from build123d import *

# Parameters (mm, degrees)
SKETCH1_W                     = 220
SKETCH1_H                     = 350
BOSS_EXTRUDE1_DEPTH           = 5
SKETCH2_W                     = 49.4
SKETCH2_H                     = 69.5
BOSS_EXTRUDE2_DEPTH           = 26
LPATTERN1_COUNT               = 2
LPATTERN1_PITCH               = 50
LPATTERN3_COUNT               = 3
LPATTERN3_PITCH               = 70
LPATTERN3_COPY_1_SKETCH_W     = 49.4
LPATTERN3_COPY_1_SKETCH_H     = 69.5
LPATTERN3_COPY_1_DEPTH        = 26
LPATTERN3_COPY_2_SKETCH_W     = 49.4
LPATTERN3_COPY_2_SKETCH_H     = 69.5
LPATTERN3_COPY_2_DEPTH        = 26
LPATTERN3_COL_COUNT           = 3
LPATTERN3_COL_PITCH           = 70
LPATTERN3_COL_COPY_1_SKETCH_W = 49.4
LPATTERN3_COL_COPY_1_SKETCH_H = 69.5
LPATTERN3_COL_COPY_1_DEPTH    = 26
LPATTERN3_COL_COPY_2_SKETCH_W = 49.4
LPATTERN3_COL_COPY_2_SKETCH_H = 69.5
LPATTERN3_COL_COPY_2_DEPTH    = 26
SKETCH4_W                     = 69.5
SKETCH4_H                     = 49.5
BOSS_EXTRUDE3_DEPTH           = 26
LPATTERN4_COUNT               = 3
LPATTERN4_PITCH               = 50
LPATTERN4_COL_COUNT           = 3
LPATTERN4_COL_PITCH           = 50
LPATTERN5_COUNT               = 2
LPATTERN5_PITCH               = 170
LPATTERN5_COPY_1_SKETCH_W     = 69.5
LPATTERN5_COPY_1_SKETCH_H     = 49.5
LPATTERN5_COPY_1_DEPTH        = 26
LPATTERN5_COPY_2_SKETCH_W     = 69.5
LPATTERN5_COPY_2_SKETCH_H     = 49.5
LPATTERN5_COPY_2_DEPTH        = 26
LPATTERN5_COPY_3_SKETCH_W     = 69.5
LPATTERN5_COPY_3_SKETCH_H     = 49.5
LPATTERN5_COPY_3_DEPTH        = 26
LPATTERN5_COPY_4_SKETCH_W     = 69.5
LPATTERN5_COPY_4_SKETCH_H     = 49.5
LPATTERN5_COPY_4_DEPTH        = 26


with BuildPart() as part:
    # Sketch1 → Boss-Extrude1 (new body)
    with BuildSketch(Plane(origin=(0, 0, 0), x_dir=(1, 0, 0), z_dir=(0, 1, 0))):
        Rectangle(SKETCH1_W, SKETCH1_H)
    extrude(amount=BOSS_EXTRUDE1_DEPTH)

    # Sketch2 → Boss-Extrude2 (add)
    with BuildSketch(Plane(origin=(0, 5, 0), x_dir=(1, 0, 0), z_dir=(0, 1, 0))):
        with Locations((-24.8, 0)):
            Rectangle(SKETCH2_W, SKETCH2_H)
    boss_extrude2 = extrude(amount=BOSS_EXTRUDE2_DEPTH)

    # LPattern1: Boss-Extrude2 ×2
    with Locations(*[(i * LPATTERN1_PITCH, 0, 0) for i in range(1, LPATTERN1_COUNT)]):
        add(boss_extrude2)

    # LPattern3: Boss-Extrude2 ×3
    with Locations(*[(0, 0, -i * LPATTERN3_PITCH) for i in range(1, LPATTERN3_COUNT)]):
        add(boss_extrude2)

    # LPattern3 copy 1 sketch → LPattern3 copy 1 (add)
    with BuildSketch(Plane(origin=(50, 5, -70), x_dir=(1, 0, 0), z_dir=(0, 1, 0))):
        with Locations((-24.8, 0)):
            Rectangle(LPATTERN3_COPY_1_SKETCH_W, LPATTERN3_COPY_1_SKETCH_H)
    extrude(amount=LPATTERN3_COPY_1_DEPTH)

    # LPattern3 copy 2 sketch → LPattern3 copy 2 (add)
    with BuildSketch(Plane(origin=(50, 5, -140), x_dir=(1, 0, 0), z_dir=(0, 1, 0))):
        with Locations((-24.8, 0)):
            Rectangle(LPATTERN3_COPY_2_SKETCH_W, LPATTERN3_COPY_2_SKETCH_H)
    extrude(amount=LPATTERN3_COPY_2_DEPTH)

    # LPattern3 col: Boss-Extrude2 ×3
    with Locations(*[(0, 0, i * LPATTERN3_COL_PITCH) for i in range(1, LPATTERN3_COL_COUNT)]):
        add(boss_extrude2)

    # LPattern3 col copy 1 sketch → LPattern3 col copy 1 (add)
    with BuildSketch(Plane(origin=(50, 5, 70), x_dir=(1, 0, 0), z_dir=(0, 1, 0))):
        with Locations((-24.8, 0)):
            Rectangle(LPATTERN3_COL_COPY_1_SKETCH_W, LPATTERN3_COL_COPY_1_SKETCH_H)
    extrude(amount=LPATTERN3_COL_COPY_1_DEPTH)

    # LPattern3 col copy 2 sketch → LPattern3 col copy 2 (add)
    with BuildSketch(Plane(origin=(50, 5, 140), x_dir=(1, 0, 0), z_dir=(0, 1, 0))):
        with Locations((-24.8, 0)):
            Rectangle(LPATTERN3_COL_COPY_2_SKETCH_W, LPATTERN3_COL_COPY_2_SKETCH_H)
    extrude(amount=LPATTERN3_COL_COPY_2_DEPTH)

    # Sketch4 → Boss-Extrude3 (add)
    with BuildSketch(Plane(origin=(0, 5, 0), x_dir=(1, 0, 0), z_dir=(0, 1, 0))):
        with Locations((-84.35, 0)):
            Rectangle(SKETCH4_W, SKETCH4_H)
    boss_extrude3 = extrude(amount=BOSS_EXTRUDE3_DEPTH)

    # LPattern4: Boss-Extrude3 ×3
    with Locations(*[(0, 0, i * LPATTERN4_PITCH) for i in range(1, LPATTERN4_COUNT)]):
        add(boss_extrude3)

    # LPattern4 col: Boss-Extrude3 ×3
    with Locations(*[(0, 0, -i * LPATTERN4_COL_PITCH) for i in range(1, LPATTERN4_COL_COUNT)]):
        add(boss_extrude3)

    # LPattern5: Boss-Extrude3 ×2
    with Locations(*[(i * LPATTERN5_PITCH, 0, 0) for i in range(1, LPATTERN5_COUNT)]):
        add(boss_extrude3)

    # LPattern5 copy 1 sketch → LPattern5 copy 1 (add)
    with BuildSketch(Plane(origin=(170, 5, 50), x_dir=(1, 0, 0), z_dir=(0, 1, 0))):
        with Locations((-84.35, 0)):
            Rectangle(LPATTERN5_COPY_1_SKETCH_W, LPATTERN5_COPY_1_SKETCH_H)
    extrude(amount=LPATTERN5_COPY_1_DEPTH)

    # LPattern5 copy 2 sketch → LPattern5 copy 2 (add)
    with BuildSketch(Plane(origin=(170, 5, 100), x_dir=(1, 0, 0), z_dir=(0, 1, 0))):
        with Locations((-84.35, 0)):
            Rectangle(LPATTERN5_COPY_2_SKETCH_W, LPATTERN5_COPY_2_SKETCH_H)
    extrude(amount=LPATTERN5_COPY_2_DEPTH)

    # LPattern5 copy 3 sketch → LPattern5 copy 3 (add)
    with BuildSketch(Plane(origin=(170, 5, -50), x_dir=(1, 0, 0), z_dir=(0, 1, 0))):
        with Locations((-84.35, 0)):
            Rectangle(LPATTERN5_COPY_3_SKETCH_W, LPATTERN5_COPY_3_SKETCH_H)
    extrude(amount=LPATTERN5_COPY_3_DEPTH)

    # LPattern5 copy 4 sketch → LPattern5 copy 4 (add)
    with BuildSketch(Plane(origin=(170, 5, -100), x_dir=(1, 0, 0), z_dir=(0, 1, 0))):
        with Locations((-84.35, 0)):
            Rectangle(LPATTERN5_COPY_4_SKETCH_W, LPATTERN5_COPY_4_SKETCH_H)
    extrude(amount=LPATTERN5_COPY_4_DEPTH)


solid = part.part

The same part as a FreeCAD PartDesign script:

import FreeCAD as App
import Part
import Sketcher
from FreeCAD import Vector
Q = App.Units.Quantity

doc = App.newDocument("Part")
body = doc.addObject("PartDesign::Body", "Body")

# Sketch on XZ plane
sketch1 = doc.addObject("Sketcher::SketchObject", "Sketch")
body.addObject(sketch1)
sketch1.AttachmentSupport = (doc.XZ_Plane, [""])
sketch1.MapMode = "FlatFace"
sketch1.addGeometry([
    Part.LineSegment(Vector(-110, -175, 0), Vector(-110, 175, 0)),
    Part.LineSegment(Vector(-110, 175, 0), Vector(110, 175, 0)),
    Part.LineSegment(Vector(110, 175, 0), Vector(110, -175, 0)),
    Part.LineSegment(Vector(110, -175, 0), Vector(-110, -175, 0)),
], False)
sketch1.addConstraint([
    Sketcher.Constraint("Coincident", 0, 2, 1, 1),
    Sketcher.Constraint("Coincident", 1, 2, 2, 1),
    Sketcher.Constraint("Coincident", 2, 2, 3, 1),
    Sketcher.Constraint("Coincident", 3, 2, 0, 1),
    Sketcher.Constraint("Vertical", 0),
    Sketcher.Constraint("Horizontal", 1),
    Sketcher.Constraint("Vertical", 2),
    Sketcher.Constraint("Horizontal", 3),
    Sketcher.Constraint("Symmetric", 0, 2, 2, 2, -1, 1),
    Sketcher.Constraint("DistanceX", 1, 1, 1, 2, Q("220 mm")),
    Sketcher.Constraint("DistanceY", 0, 1, 0, 2, Q("350 mm")),
])
pad1 = doc.addObject("PartDesign::Pad", "Pad")
body.addObject(pad1)
pad1.Profile = sketch1
pad1.Length = 5
pad1.Reversed = True

# Sketch on XZ plane
sketch2 = doc.addObject("Sketcher::SketchObject", "Sketch001")
body.addObject(sketch2)
sketch2.AttachmentSupport = (doc.XZ_Plane, [""])
sketch2.MapMode = "FlatFace"
sketch2.AttachmentOffset = App.Placement(Vector(0, 0, -5), App.Rotation())
sketch2.addGeometry([
    Part.LineSegment(Vector(-50, -35, 0), Vector(-50, 35, 0)),
    Part.LineSegment(Vector(-50, 35, 0), Vector(0, 35, 0)),
    Part.LineSegment(Vector(0, 35, 0), Vector(0, -35, 0)),
    Part.LineSegment(Vector(0, -35, 0), Vector(-50, -35, 0)),
], False)
sketch2.addConstraint([
    Sketcher.Constraint("Coincident", 0, 2, 1, 1),
    Sketcher.Constraint("Coincident", 1, 2, 2, 1),
    Sketcher.Constraint("Coincident", 2, 2, 3, 1),
    Sketcher.Constraint("Coincident", 3, 2, 0, 1),
    Sketcher.Constraint("Vertical", 0),
    Sketcher.Constraint("Horizontal", 1),
    Sketcher.Constraint("Vertical", 2),
    Sketcher.Constraint("Horizontal", 3),
    Sketcher.Constraint("DistanceX", 1, 1, 1, 2, Q("49.4 mm")),
    Sketcher.Constraint("DistanceY", 0, 1, 0, 2, Q("69.5 mm")),
    Sketcher.Constraint("DistanceX", 0, 2, -1, 1, Q("49.5 mm")),
    Sketcher.Constraint("DistanceY", -1, 1, 0, 2, Q("34.75 mm")),
])
pad2 = doc.addObject("PartDesign::Pad", "Pad001")
body.addObject(pad2)
pad2.Profile = sketch2
pad2.Length = 26
pad2.Reversed = True
doc.recompute()

linearpattern = doc.addObject("PartDesign::LinearPattern", "LinearPattern")
body.addObject(linearpattern)
linearpattern.Originals = [pad2]
linearpattern.Direction = (doc.X_Axis, [""])
linearpattern.Mode = "offset"
linearpattern.Offset = 50
linearpattern.Occurrences = 2
body.Tip = linearpattern
doc.recompute()

linearpattern2 = doc.addObject("PartDesign::LinearPattern", "LinearPattern001")
body.addObject(linearpattern2)
linearpattern2.Originals = [pad2]
linearpattern2.Direction = (doc.Z_Axis, [""])
linearpattern2.Mode = "offset"
linearpattern2.Offset = 70
linearpattern2.Occurrences = 3
linearpattern2.Reversed = True
body.Tip = linearpattern2

# Sketch on XZ plane
sketch3 = doc.addObject("Sketcher::SketchObject", "Sketch002")
body.addObject(sketch3)
sketch3.AttachmentSupport = (doc.XZ_Plane, [""])
sketch3.MapMode = "FlatFace"
sketch3.AttachmentOffset = App.Placement(Vector(0, 0, -5), App.Rotation())
sketch3.addGeometry([
    Part.LineSegment(Vector(0, -105, 0), Vector(0, -35, 0)),
    Part.LineSegment(Vector(0, -35, 0), Vector(50, -35, 0)),
    Part.LineSegment(Vector(50, -35, 0), Vector(50, -105, 0)),
    Part.LineSegment(Vector(50, -105, 0), Vector(0, -105, 0)),
], False)
sketch3.addConstraint([
    Sketcher.Constraint("Coincident", 0, 2, 1, 1),
    Sketcher.Constraint("Coincident", 1, 2, 2, 1),
    Sketcher.Constraint("Coincident", 2, 2, 3, 1),
    Sketcher.Constraint("Coincident", 3, 2, 0, 1),
    Sketcher.Constraint("Vertical", 0),
    Sketcher.Constraint("Horizontal", 1),
    Sketcher.Constraint("Vertical", 2),
    Sketcher.Constraint("Horizontal", 3),
    Sketcher.Constraint("DistanceX", 1, 1, 1, 2, Q("49.4 mm")),
    Sketcher.Constraint("DistanceY", 0, 1, 0, 2, Q("69.5 mm")),
    Sketcher.Constraint("DistanceX", -1, 1, 0, 2, Q("0.5 mm")),
    Sketcher.Constraint("DistanceY", 0, 2, -1, 1, Q("35.25 mm")),
])
pad3 = doc.addObject("PartDesign::Pad", "Pad002")
body.addObject(pad3)
pad3.Profile = sketch3
pad3.Length = 26
pad3.Reversed = True

# Sketch on XZ plane
sketch4 = doc.addObject("Sketcher::SketchObject", "Sketch003")
body.addObject(sketch4)
sketch4.AttachmentSupport = (doc.XZ_Plane, [""])
sketch4.MapMode = "FlatFace"
sketch4.AttachmentOffset = App.Placement(Vector(0, 0, -5), App.Rotation())
sketch4.addGeometry([
    Part.LineSegment(Vector(0, -175, 0), Vector(0, -105, 0)),
    Part.LineSegment(Vector(0, -105, 0), Vector(50, -105, 0)),
    Part.LineSegment(Vector(50, -105, 0), Vector(50, -175, 0)),
    Part.LineSegment(Vector(50, -175, 0), Vector(0, -175, 0)),
], False)
sketch4.addConstraint([
    Sketcher.Constraint("Coincident", 0, 2, 1, 1),
    Sketcher.Constraint("Coincident", 1, 2, 2, 1),
    Sketcher.Constraint("Coincident", 2, 2, 3, 1),
    Sketcher.Constraint("Coincident", 3, 2, 0, 1),
    Sketcher.Constraint("Vertical", 0),
    Sketcher.Constraint("Horizontal", 1),
    Sketcher.Constraint("Vertical", 2),
    Sketcher.Constraint("Horizontal", 3),
    Sketcher.Constraint("DistanceX", 1, 1, 1, 2, Q("49.4 mm")),
    Sketcher.Constraint("DistanceY", 0, 1, 0, 2, Q("69.5 mm")),
    Sketcher.Constraint("DistanceX", -1, 1, 0, 2, Q("0.5 mm")),
    Sketcher.Constraint("DistanceY", 0, 2, -1, 1, Q("105.25 mm")),
])
pad4 = doc.addObject("PartDesign::Pad", "Pad003")
body.addObject(pad4)
pad4.Profile = sketch4
pad4.Length = 26
pad4.Reversed = True
doc.recompute()

linearpattern3 = doc.addObject("PartDesign::LinearPattern", "LinearPattern002")
body.addObject(linearpattern3)
linearpattern3.Originals = [pad2]
linearpattern3.Direction = (doc.Z_Axis, [""])
linearpattern3.Mode = "offset"
linearpattern3.Offset = 70
linearpattern3.Occurrences = 3
body.Tip = linearpattern3

# Sketch on XZ plane
sketch5 = doc.addObject("Sketcher::SketchObject", "Sketch004")
body.addObject(sketch5)
sketch5.AttachmentSupport = (doc.XZ_Plane, [""])
sketch5.MapMode = "FlatFace"
sketch5.AttachmentOffset = App.Placement(Vector(0, 0, -5), App.Rotation())
sketch5.addGeometry([
    Part.LineSegment(Vector(0, 35, 0), Vector(0, 105, 0)),
    Part.LineSegment(Vector(0, 105, 0), Vector(50, 105, 0)),
    Part.LineSegment(Vector(50, 105, 0), Vector(50, 35, 0)),
    Part.LineSegment(Vector(50, 35, 0), Vector(0, 35, 0)),
], False)
sketch5.addConstraint([
    Sketcher.Constraint("Coincident", 0, 2, 1, 1),
    Sketcher.Constraint("Coincident", 1, 2, 2, 1),
    Sketcher.Constraint("Coincident", 2, 2, 3, 1),
    Sketcher.Constraint("Coincident", 3, 2, 0, 1),
    Sketcher.Constraint("Vertical", 0),
    Sketcher.Constraint("Horizontal", 1),
    Sketcher.Constraint("Vertical", 2),
    Sketcher.Constraint("Horizontal", 3),
    Sketcher.Constraint("DistanceX", 1, 1, 1, 2, Q("49.4 mm")),
    Sketcher.Constraint("DistanceY", 0, 1, 0, 2, Q("69.5 mm")),
    Sketcher.Constraint("DistanceX", -1, 1, 0, 2, Q("0.5 mm")),
    Sketcher.Constraint("DistanceY", -1, 1, 0, 2, Q("104.75 mm")),
])
pad5 = doc.addObject("PartDesign::Pad", "Pad004")
body.addObject(pad5)
pad5.Profile = sketch5
pad5.Length = 26
pad5.Reversed = True

# Sketch on XZ plane
sketch6 = doc.addObject("Sketcher::SketchObject", "Sketch005")
body.addObject(sketch6)
sketch6.AttachmentSupport = (doc.XZ_Plane, [""])
sketch6.MapMode = "FlatFace"
sketch6.AttachmentOffset = App.Placement(Vector(0, 0, -5), App.Rotation())
sketch6.addGeometry([
    Part.LineSegment(Vector(0, 105, 0), Vector(0, 175, 0)),
    Part.LineSegment(Vector(0, 175, 0), Vector(50, 175, 0)),
    Part.LineSegment(Vector(50, 175, 0), Vector(50, 105, 0)),
    Part.LineSegment(Vector(50, 105, 0), Vector(0, 105, 0)),
], False)
sketch6.addConstraint([
    Sketcher.Constraint("Coincident", 0, 2, 1, 1),
    Sketcher.Constraint("Coincident", 1, 2, 2, 1),
    Sketcher.Constraint("Coincident", 2, 2, 3, 1),
    Sketcher.Constraint("Coincident", 3, 2, 0, 1),
    Sketcher.Constraint("Vertical", 0),
    Sketcher.Constraint("Horizontal", 1),
    Sketcher.Constraint("Vertical", 2),
    Sketcher.Constraint("Horizontal", 3),
    Sketcher.Constraint("DistanceX", 1, 1, 1, 2, Q("49.4 mm")),
    Sketcher.Constraint("DistanceY", 0, 1, 0, 2, Q("69.5 mm")),
    Sketcher.Constraint("DistanceX", -1, 1, 0, 2, Q("0.5 mm")),
    Sketcher.Constraint("DistanceY", -1, 1, 0, 2, Q("174.75 mm")),
])
pad6 = doc.addObject("PartDesign::Pad", "Pad005")
body.addObject(pad6)
pad6.Profile = sketch6
pad6.Length = 26
pad6.Reversed = True

# Sketch on XZ plane
sketch7 = doc.addObject("Sketcher::SketchObject", "Sketch006")
body.addObject(sketch7)
sketch7.AttachmentSupport = (doc.XZ_Plane, [""])
sketch7.MapMode = "FlatFace"
sketch7.AttachmentOffset = App.Placement(Vector(0, 0, -5), App.Rotation())
sketch7.addGeometry([
    Part.LineSegment(Vector(-119, -25, 0), Vector(-119, 25, 0)),
    Part.LineSegment(Vector(-119, 25, 0), Vector(-50, 25, 0)),
    Part.LineSegment(Vector(-50, 25, 0), Vector(-50, -25, 0)),
    Part.LineSegment(Vector(-50, -25, 0), Vector(-119, -25, 0)),
], False)
sketch7.addConstraint([
    Sketcher.Constraint("Coincident", 0, 2, 1, 1),
    Sketcher.Constraint("Coincident", 1, 2, 2, 1),
    Sketcher.Constraint("Coincident", 2, 2, 3, 1),
    Sketcher.Constraint("Coincident", 3, 2, 0, 1),
    Sketcher.Constraint("Vertical", 0),
    Sketcher.Constraint("Horizontal", 1),
    Sketcher.Constraint("Vertical", 2),
    Sketcher.Constraint("Horizontal", 3),
    Sketcher.Constraint("DistanceX", 1, 1, 1, 2, Q("69.5 mm")),
    Sketcher.Constraint("DistanceY", 0, 1, 0, 2, Q("49.5 mm")),
    Sketcher.Constraint("DistanceX", 0, 2, -1, 1, Q("119.1 mm")),
    Sketcher.Constraint("DistanceY", -1, 1, 0, 2, Q("24.75 mm")),
])
pad7 = doc.addObject("PartDesign::Pad", "Pad006")
body.addObject(pad7)
pad7.Profile = sketch7
pad7.Length = 26
pad7.Reversed = True
doc.recompute()

linearpattern4 = doc.addObject("PartDesign::LinearPattern", "LinearPattern003")
body.addObject(linearpattern4)
linearpattern4.Originals = [pad7]
linearpattern4.Direction = (doc.Z_Axis, [""])
linearpattern4.Mode = "offset"
linearpattern4.Offset = 50
linearpattern4.Occurrences = 3
body.Tip = linearpattern4
doc.recompute()

linearpattern5 = doc.addObject("PartDesign::LinearPattern", "LinearPattern004")
body.addObject(linearpattern5)
linearpattern5.Originals = [pad7]
linearpattern5.Direction = (doc.Z_Axis, [""])
linearpattern5.Mode = "offset"
linearpattern5.Offset = 50
linearpattern5.Occurrences = 3
linearpattern5.Reversed = True
body.Tip = linearpattern5
doc.recompute()

linearpattern6 = doc.addObject("PartDesign::LinearPattern", "LinearPattern005")
body.addObject(linearpattern6)
linearpattern6.Originals = [pad7]
linearpattern6.Direction = (doc.X_Axis, [""])
linearpattern6.Mode = "offset"
linearpattern6.Offset = 170
linearpattern6.Occurrences = 2
body.Tip = linearpattern6

# Sketch on XZ plane
sketch8 = doc.addObject("Sketcher::SketchObject", "Sketch007")
body.addObject(sketch8)
sketch8.AttachmentSupport = (doc.XZ_Plane, [""])
sketch8.MapMode = "FlatFace"
sketch8.AttachmentOffset = App.Placement(Vector(0, 0, -5), App.Rotation())
sketch8.addGeometry([
    Part.LineSegment(Vector(51, 25, 0), Vector(51, 75, 0)),
    Part.LineSegment(Vector(51, 75, 0), Vector(120, 75, 0)),
    Part.LineSegment(Vector(120, 75, 0), Vector(120, 25, 0)),
    Part.LineSegment(Vector(120, 25, 0), Vector(51, 25, 0)),
], False)
sketch8.addConstraint([
    Sketcher.Constraint("Coincident", 0, 2, 1, 1),
    Sketcher.Constraint("Coincident", 1, 2, 2, 1),
    Sketcher.Constraint("Coincident", 2, 2, 3, 1),
    Sketcher.Constraint("Coincident", 3, 2, 0, 1),
    Sketcher.Constraint("Vertical", 0),
    Sketcher.Constraint("Horizontal", 1),
    Sketcher.Constraint("Vertical", 2),
    Sketcher.Constraint("Horizontal", 3),
    Sketcher.Constraint("DistanceX", 1, 1, 1, 2, Q("69.5 mm")),
    Sketcher.Constraint("DistanceY", 0, 1, 0, 2, Q("49.5 mm")),
    Sketcher.Constraint("DistanceX", -1, 1, 0, 2, Q("50.9 mm")),
    Sketcher.Constraint("DistanceY", -1, 1, 0, 2, Q("74.75 mm")),
])
pad8 = doc.addObject("PartDesign::Pad", "Pad007")
body.addObject(pad8)
pad8.Profile = sketch8
pad8.Length = 26
pad8.Reversed = True

# Sketch on XZ plane
sketch9 = doc.addObject("Sketcher::SketchObject", "Sketch008")
body.addObject(sketch9)
sketch9.AttachmentSupport = (doc.XZ_Plane, [""])
sketch9.MapMode = "FlatFace"
sketch9.AttachmentOffset = App.Placement(Vector(0, 0, -5), App.Rotation())
sketch9.addGeometry([
    Part.LineSegment(Vector(51, 75, 0), Vector(51, 125, 0)),
    Part.LineSegment(Vector(51, 125, 0), Vector(120, 125, 0)),
    Part.LineSegment(Vector(120, 125, 0), Vector(120, 75, 0)),
    Part.LineSegment(Vector(120, 75, 0), Vector(51, 75, 0)),
], False)
sketch9.addConstraint([
    Sketcher.Constraint("Coincident", 0, 2, 1, 1),
    Sketcher.Constraint("Coincident", 1, 2, 2, 1),
    Sketcher.Constraint("Coincident", 2, 2, 3, 1),
    Sketcher.Constraint("Coincident", 3, 2, 0, 1),
    Sketcher.Constraint("Vertical", 0),
    Sketcher.Constraint("Horizontal", 1),
    Sketcher.Constraint("Vertical", 2),
    Sketcher.Constraint("Horizontal", 3),
    Sketcher.Constraint("DistanceX", 1, 1, 1, 2, Q("69.5 mm")),
    Sketcher.Constraint("DistanceY", 0, 1, 0, 2, Q("49.5 mm")),
    Sketcher.Constraint("DistanceX", -1, 1, 0, 2, Q("50.9 mm")),
    Sketcher.Constraint("DistanceY", -1, 1, 0, 2, Q("124.75 mm")),
])
pad9 = doc.addObject("PartDesign::Pad", "Pad008")
body.addObject(pad9)
pad9.Profile = sketch9
pad9.Length = 26
pad9.Reversed = True

# Sketch on XZ plane
sketch10 = doc.addObject("Sketcher::SketchObject", "Sketch009")
body.addObject(sketch10)
sketch10.AttachmentSupport = (doc.XZ_Plane, [""])
sketch10.MapMode = "FlatFace"
sketch10.AttachmentOffset = App.Placement(Vector(0, 0, -5), App.Rotation())
sketch10.addGeometry([
    Part.LineSegment(Vector(51, -75, 0), Vector(51, -25, 0)),
    Part.LineSegment(Vector(51, -25, 0), Vector(120, -25, 0)),
    Part.LineSegment(Vector(120, -25, 0), Vector(120, -75, 0)),
    Part.LineSegment(Vector(120, -75, 0), Vector(51, -75, 0)),
], False)
sketch10.addConstraint([
    Sketcher.Constraint("Coincident", 0, 2, 1, 1),
    Sketcher.Constraint("Coincident", 1, 2, 2, 1),
    Sketcher.Constraint("Coincident", 2, 2, 3, 1),
    Sketcher.Constraint("Coincident", 3, 2, 0, 1),
    Sketcher.Constraint("Vertical", 0),
    Sketcher.Constraint("Horizontal", 1),
    Sketcher.Constraint("Vertical", 2),
    Sketcher.Constraint("Horizontal", 3),
    Sketcher.Constraint("DistanceX", 1, 1, 1, 2, Q("69.5 mm")),
    Sketcher.Constraint("DistanceY", 0, 1, 0, 2, Q("49.5 mm")),
    Sketcher.Constraint("DistanceX", -1, 1, 0, 2, Q("50.9 mm")),
    Sketcher.Constraint("DistanceY", 0, 2, -1, 1, Q("25.25 mm")),
])
pad10 = doc.addObject("PartDesign::Pad", "Pad009")
body.addObject(pad10)
pad10.Profile = sketch10
pad10.Length = 26
pad10.Reversed = True

# Sketch on XZ plane
sketch11 = doc.addObject("Sketcher::SketchObject", "Sketch010")
body.addObject(sketch11)
sketch11.AttachmentSupport = (doc.XZ_Plane, [""])
sketch11.MapMode = "FlatFace"
sketch11.AttachmentOffset = App.Placement(Vector(0, 0, -5), App.Rotation())
sketch11.addGeometry([
    Part.LineSegment(Vector(51, -125, 0), Vector(51, -75, 0)),
    Part.LineSegment(Vector(51, -75, 0), Vector(120, -75, 0)),
    Part.LineSegment(Vector(120, -75, 0), Vector(120, -125, 0)),
    Part.LineSegment(Vector(120, -125, 0), Vector(51, -125, 0)),
], False)
sketch11.addConstraint([
    Sketcher.Constraint("Coincident", 0, 2, 1, 1),
    Sketcher.Constraint("Coincident", 1, 2, 2, 1),
    Sketcher.Constraint("Coincident", 2, 2, 3, 1),
    Sketcher.Constraint("Coincident", 3, 2, 0, 1),
    Sketcher.Constraint("Vertical", 0),
    Sketcher.Constraint("Horizontal", 1),
    Sketcher.Constraint("Vertical", 2),
    Sketcher.Constraint("Horizontal", 3),
    Sketcher.Constraint("DistanceX", 1, 1, 1, 2, Q("69.5 mm")),
    Sketcher.Constraint("DistanceY", 0, 1, 0, 2, Q("49.5 mm")),
    Sketcher.Constraint("DistanceX", -1, 1, 0, 2, Q("50.9 mm")),
    Sketcher.Constraint("DistanceY", 0, 2, -1, 1, Q("75.25 mm")),
])
pad11 = doc.addObject("PartDesign::Pad", "Pad010")
body.addObject(pad11)
pad11.Profile = sketch11
pad11.Length = 26
pad11.Reversed = True

doc.recompute()
